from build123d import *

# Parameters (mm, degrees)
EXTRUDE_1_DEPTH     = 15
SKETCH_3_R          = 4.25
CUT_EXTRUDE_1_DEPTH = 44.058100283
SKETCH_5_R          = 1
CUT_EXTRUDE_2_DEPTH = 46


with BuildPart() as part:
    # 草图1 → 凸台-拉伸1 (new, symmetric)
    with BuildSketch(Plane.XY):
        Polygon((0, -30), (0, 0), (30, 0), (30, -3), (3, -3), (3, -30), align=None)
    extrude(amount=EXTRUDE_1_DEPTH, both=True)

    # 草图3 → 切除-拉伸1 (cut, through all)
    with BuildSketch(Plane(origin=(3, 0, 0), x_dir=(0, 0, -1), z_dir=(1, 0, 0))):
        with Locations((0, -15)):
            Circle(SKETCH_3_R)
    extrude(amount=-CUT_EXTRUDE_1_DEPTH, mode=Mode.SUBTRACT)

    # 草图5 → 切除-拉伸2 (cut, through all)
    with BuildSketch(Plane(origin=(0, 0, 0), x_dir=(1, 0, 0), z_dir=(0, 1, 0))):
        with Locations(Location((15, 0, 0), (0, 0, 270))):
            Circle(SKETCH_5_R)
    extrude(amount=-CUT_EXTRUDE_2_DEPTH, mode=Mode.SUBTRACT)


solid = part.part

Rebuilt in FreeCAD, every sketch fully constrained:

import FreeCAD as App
import Part
import Sketcher

V = App.Vector

doc = App.newDocument("Part")
params = doc.addObject("Spreadsheet::Sheet", "Params")
for row, (alias, value) in enumerate([
    ("sketch1_width", "3 mm"),
    ("sketch1_width2", "27 mm"),
    ("pad1_length", "30 mm"),
    ("sketch2_diameter", "8.5 mm"),
    ("sketch3_diameter", "2 mm"),
], start=1):
    params.set(f"A{row}", alias)
    params.set(f"B{row}", "=" + value)
    params.setAlias(f"B{row}", alias)

body = doc.addObject("PartDesign::Body", "Body")

# Sketch on XY plane
sketch1 = body.newObject("Sketcher::SketchObject", "Sketch")
sketch1.AttachmentSupport = (doc.getObject("XY_Plane"), [""])
sketch1.MapMode = "FlatFace"
sketch1.addGeometry(Part.LineSegment(V(0, 0, 0), V(0, -30, 0)), False)
sketch1.addGeometry(Part.LineSegment(V(0, -30, 0), V(3, -30, 0)), False)
sketch1.addGeometry(Part.LineSegment(V(3, -30, 0), V(3, -3, 0)), False)
sketch1.addGeometry(Part.LineSegment(V(3, -3, 0), V(30, -3, 0)), False)
sketch1.addGeometry(Part.LineSegment(V(30, -3, 0), V(30, 0, 0)), False)
sketch1.addGeometry(Part.LineSegment(V(30, 0, 0), V(0, 0, 0)), False)
sketch1.addConstraint(Sketcher.Constraint("Coincident", 0, 2, 1, 1))
sketch1.addConstraint(Sketcher.Constraint("Coincident", 1, 2, 2, 1))
sketch1.addConstraint(Sketcher.Constraint("Coincident", 2, 2, 3, 1))
sketch1.addConstraint(Sketcher.Constraint("Coincident", 3, 2, 4, 1))
sketch1.addConstraint(Sketcher.Constraint("Coincident", 4, 2, 5, 1))
sketch1.addConstraint(Sketcher.Constraint("Coincident", 5, 2, 0, 1))
sketch1.addConstraint(Sketcher.Constraint("Vertical", 0))
sketch1.addConstraint(Sketcher.Constraint("Horizontal", 1))
sketch1.addConstraint(Sketcher.Constraint("Vertical", 2))
sketch1.addConstraint(Sketcher.Constraint("Horizontal", 3))
sketch1.addConstraint(Sketcher.Constraint("Vertical", 4))
sketch1.addConstraint(Sketcher.Constraint("Horizontal", 5))
sketch1.addConstraint(Sketcher.Constraint("Coincident", 5, 2, -1, 1))
sketch1.addConstraint(Sketcher.Constraint("Equal", 5, 0))
sketch1.addConstraint(Sketcher.Constraint("Equal", 3, 2))
sketch1.addConstraint(Sketcher.Constraint("DistanceX", 1, 1, 1, 2, 3.0))
sketch1.addConstraint(Sketcher.Constraint("DistanceX", 3, 1, 3, 2, 27.0))
sketch1.setExpression("Constraints[15]", "Params.sketch1_width")
sketch1.setExpression("Constraints[16]", "Params.sketch1_width2")
pad1 = body.newObject("PartDesign::Pad", "Pad")
pad1.Profile = sketch1
pad1.setExpression("Length", "Params.pad1_length")
pad1.Midplane = True

# Sketch on YZ plane
sketch2 = body.newObject("Sketcher::SketchObject", "Sketch001")
sketch2.AttachmentSupport = (doc.getObject("YZ_Plane"), [""])
sketch2.MapMode = "FlatFace"
sketch2.AttachmentOffset = App.Placement(V(0, 0, 3), App.Rotation())
sketch2.addGeometry(Part.Circle(V(-15, 0, 0), V(0, 0, 1), 4.25), False)
sketch2.addConstraint(Sketcher.Constraint("PointOnObject", 0, 3, -1))
sketch2.addConstraint(Sketcher.Constraint("Diameter", 0, 8.5))
sketch2.addConstraint(Sketcher.Constraint("DistanceX", 0, 3, -1, 1, 15.0))
sketch2.setExpression("Constraints[1]", "Params.sketch2_diameter")
pocket1 = body.newObject("PartDesign::Pocket", "Pocket")
pocket1.Profile = sketch2
pocket1.Type = "ThroughAll"

# Sketch on XZ plane
sketch3 = body.newObject("Sketcher::SketchObject", "Sketch002")
sketch3.AttachmentSupport = (doc.getObject("XZ_Plane"), [""])
sketch3.MapMode = "FlatFace"
sketch3.addGeometry(Part.Circle(V(15, 0, 0), V(0, 0, 1), 1), False)
sketch3.addConstraint(Sketcher.Constraint("PointOnObject", 0, 3, -1))
sketch3.addConstraint(Sketcher.Constraint("Diameter", 0, 2.0))
sketch3.addConstraint(Sketcher.Constraint("DistanceX", -1, 1, 0, 3, 15.0))
sketch3.setExpression("Constraints[1]", "Params.sketch3_diameter")
pocket2 = body.newObject("PartDesign::Pocket", "Pocket001")
pocket2.Profile = sketch3
pocket2.Type = "ThroughAll"
pocket2.Reversed = True

doc.recompute()
